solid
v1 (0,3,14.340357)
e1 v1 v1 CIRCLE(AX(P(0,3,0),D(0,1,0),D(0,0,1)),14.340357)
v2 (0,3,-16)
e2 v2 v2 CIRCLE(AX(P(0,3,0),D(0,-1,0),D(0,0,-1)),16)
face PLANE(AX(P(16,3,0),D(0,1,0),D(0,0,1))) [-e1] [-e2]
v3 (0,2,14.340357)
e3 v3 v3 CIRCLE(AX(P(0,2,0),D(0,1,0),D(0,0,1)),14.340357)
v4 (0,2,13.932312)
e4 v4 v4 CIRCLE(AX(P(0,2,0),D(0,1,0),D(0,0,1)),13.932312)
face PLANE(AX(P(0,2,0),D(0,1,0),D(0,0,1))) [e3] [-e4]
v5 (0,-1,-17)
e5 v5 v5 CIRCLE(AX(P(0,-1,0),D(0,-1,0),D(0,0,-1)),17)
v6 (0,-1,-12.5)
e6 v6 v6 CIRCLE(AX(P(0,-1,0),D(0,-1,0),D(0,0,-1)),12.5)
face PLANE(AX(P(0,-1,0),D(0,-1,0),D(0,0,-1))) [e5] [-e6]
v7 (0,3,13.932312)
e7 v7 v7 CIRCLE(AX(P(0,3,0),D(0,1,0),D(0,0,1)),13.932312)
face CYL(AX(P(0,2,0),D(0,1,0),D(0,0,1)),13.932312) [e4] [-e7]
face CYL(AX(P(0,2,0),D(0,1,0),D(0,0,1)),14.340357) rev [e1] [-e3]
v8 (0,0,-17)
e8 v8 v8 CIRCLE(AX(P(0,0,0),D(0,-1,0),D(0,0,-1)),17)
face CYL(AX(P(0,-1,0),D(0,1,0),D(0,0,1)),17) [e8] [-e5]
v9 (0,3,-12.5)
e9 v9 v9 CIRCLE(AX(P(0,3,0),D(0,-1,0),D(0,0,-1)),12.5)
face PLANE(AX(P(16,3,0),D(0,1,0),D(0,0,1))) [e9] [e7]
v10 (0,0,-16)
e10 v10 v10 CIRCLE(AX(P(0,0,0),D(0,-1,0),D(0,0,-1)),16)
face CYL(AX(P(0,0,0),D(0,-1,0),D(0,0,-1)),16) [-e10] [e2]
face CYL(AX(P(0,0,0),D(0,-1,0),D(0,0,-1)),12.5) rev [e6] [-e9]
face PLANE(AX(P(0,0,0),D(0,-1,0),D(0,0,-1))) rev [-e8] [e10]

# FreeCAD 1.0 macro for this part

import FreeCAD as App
import Part
import Sketcher

V = App.Vector
Q = App.Units.Quantity

doc = App.newDocument("Part")
body = doc.addObject("PartDesign::Body", "Body")

# Sketch on XY plane
sketch1 = doc.addObject("Sketcher::SketchObject", "Sketch")
body.addObject(sketch1)
sketch1.AttachmentSupport = (doc.XY_Plane, [""])
sketch1.MapMode = "FlatFace"
sketch1.addGeometry([
    Part.LineSegment(V(12.5, 3, 0), V(12.5, 0, 0)),
    Part.LineSegment(V(12.5, 0, 0), V(16, 0, 0)),
    Part.LineSegment(V(16, 0, 0), V(16, 3, 0)),
    Part.LineSegment(V(16, 3, 0), V(12.5, 3, 0)),
], False)
sketch1.addConstraint([
    Sketcher.Constraint("Coincident", 0, 2, 1, 1),
    Sketcher.Constraint("Coincident", 1, 2, 2, 1),
    Sketcher.Constraint("Coincident", 2, 2, 3, 1),
    Sketcher.Constraint("Coincident", 3, 2, 0, 1),
    Sketcher.Constraint("Vertical", 0),
    Sketcher.Constraint("Horizontal", 1),
    Sketcher.Constraint("Vertical", 2),
    Sketcher.Constraint("Horizontal", 3),
    Sketcher.Constraint("PointOnObject", 0, 2, -1),
    Sketcher.Constraint("DistanceY", 0, 2, 0, 1, Q("3 mm")),
    Sketcher.Constraint("DistanceX", 1, 1, 1, 2, Q("3.5 mm")),
    Sketcher.Constraint("DistanceX", -1, 1, 1, 2, Q("16 mm")),
])
revolution = doc.addObject("PartDesign::Revolution", "Revolution")
body.addObject(revolution)
revolution.Profile = sketch1
revolution.ReferenceAxis = (sketch1, ["V_Axis"])
revolution.Angle = 360

# Sketch on XZ plane
sketch2 = doc.addObject("Sketcher::SketchObject", "Sketch001")
body.addObject(sketch2)
sketch2.AttachmentSupport = (doc.XZ_Plane, [""])
sketch2.MapMode = "FlatFace"
sketch2.AttachmentOffset = App.Placement(V(0, 0, 1), App.Rotation())
sketch2.addGeometry([
    Part.Circle(V(0, 0, 0), V(0, 0, 1), 17),
    Part.Circle(V(0, 0, 0), V(0, 0, 1), 12.5),
], False)
sketch2.addConstraint([
    Sketcher.Constraint("Coincident", 0, 3, -1, 1),
    Sketcher.Constraint("Coincident", 1, 3, -1, 1),
    Sketcher.Constraint("Diameter", 0, Q("34 mm")),
    Sketcher.Constraint("Diameter", 1, Q("25 mm")),
])
pad1 = doc.addObject("PartDesign::Pad", "Pad")
body.addObject(pad1)
pad1.Profile = sketch2
pad1.Length = 1
pad1.Reversed = True

# Sketch on XZ plane
sketch3 = doc.addObject("Sketcher::SketchObject", "Sketch002")
body.addObject(sketch3)
sketch3.AttachmentSupport = (doc.XZ_Plane, [""])
sketch3.MapMode = "FlatFace"
sketch3.AttachmentOffset = App.Placement(V(0, 0, -3), App.Rotation())
sketch3.addGeometry([
    Part.Circle(V(0, 0, 0), V(0, 0, 1), 14.340357),
    Part.Circle(V(0, 0, 0), V(0, 0, 1), 13.932312),
], False)
sketch3.addConstraint([
    Sketcher.Constraint("Coincident", 0, 3, -1, 1),
    Sketcher.Constraint("Coincident", 1, 3, -1, 1),
    Sketcher.Constraint("Diameter", 0, Q("28.680714 mm")),
    Sketcher.Constraint("Diameter", 1, Q("27.864624 mm")),
])
pocket1 = doc.addObject("PartDesign::Pocket", "Pocket")
body.addObject(pocket1)
pocket1.Profile = sketch3
pocket1.Length = 1
pocket1.Reversed = True

doc.recompute()
